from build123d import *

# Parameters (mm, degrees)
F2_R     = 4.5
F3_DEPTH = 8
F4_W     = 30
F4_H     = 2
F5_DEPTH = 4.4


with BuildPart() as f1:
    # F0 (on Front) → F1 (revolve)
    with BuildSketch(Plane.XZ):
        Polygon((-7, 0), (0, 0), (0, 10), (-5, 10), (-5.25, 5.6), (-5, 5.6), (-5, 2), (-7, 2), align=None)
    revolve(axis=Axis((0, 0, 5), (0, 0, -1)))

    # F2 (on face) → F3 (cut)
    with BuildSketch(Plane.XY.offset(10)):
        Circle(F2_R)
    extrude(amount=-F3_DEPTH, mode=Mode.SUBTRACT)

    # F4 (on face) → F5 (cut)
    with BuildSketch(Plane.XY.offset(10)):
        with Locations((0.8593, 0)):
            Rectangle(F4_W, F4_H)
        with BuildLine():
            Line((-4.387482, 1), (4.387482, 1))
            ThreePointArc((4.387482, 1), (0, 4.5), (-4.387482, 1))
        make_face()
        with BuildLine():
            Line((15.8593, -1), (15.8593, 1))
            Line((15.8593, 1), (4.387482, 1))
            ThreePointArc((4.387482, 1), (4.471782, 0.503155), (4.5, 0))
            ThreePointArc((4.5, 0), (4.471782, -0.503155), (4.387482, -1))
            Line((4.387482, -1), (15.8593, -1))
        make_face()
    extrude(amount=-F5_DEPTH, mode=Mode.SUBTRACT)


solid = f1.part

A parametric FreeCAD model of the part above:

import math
import FreeCAD as App
import Part
import Sketcher

V = App.Vector

doc = App.newDocument("Part")
body = doc.addObject("PartDesign::Body", "Body")

# Sketch on XZ plane
sketch1 = doc.addObject("Sketcher::SketchObject", "Sketch")
body.addObject(sketch1)
sketch1.AttachmentSupport = (doc.XZ_Plane, [""])
sketch1.MapMode = "FlatFace"
sketch1.addGeometry([
    Part.LineSegment(V(-7, 0, 0), V(0, 0, 0)),  # 0
    Part.LineSegment(V(0, 0, 0), V(0, 10, 0)),  # 1
    Part.LineSegment(V(0, 10, 0), V(-5, 10, 0)),  # 2
    Part.LineSegment(V(-5, 10, 0), V(-5.25, 5.6, 0)),  # 3
    Part.LineSegment(V(-5.25, 5.6, 0), V(-5, 5.6, 0)),  # 4
    Part.LineSegment(V(-5, 5.6, 0), V(-5, 2, 0)),  # 5
    Part.LineSegment(V(-5, 2, 0), V(-7, 2, 0)),  # 6
    Part.LineSegment(V(-7, 2, 0), V(-7, 0, 0)),  # 7
], False)
sketch1.addConstraint([
    Sketcher.Constraint("Coincident", 0, 2, 1, 1),
    Sketcher.Constraint("Coincident", 1, 2, 2, 1),
    Sketcher.Constraint("Coincident", 2, 2, 3, 1),
    Sketcher.Constraint("Coincident", 3, 2, 4, 1),
    Sketcher.Constraint("Coincident", 4, 2, 5, 1),
    Sketcher.Constraint("Coincident", 5, 2, 6, 1),
    Sketcher.Constraint("Coincident", 6, 2, 7, 1),
    Sketcher.Constraint("Coincident", 7, 2, 0, 1),
    Sketcher.Constraint("Horizontal", 0),
    Sketcher.Constraint("Vertical", 1),
    Sketcher.Constraint("Horizontal", 2),
    Sketcher.Constraint("Horizontal", 4),
    Sketcher.Constraint("Vertical", 5),
    Sketcher.Constraint("Horizontal", 6),
    Sketcher.Constraint("Vertical", 7),
    Sketcher.Constraint("Coincident", 0, 2, -1, 1),
    Sketcher.Constraint("Vertical", 2, 2, 4, 2),
    Sketcher.Constraint("Equal", 6, 7),
    Sketcher.Constraint("DistanceX", 0, 1, 0, 2, 7.0),
    Sketcher.Constraint("DistanceX", 2, 2, 2, 1, 5.0),
    Sketcher.Constraint("DistanceY", 1, 1, 1, 2, 10.0),
    Sketcher.Constraint("DistanceY", 5, 2, 5, 1, 3.6),
    Sketcher.Constraint("DistanceX", 4, 1, 4, 2, 0.25),
])
revolution = doc.addObject("PartDesign::Revolution", "Revolution")
body.addObject(revolution)
revolution.Profile = sketch1
revolution.ReferenceAxis = (sketch1, ["V_Axis"])
revolution.Angle = 360

# Sketch on XY plane
sketch2 = doc.addObject("Sketcher::SketchObject", "Sketch001")
body.addObject(sketch2)
sketch2.AttachmentSupport = (doc.XY_Plane, [""])
sketch2.MapMode = "FlatFace"
sketch2.AttachmentOffset = App.Placement(V(0, 0, 10), App.Rotation())
sketch2.addGeometry(Part.Circle(V(0, 0, 0), V(0, 0, 1), 4.5), False)
sketch2.addConstraint([
    Sketcher.Constraint("Coincident", 0, 3, -1, 1),
    Sketcher.Constraint("Diameter", 0, 9.0),
])
pocket1 = doc.addObject("PartDesign::Pocket", "Pocket")
body.addObject(pocket1)
pocket1.Profile = sketch2
pocket1.Length = 8

# Sketch on XY plane
sketch3 = doc.addObject("Sketcher::SketchObject", "Sketch002")
body.addObject(sketch3)
sketch3.AttachmentSupport = (doc.XY_Plane, [""])
sketch3.MapMode = "FlatFace"
sketch3.AttachmentOffset = App.Placement(V(0, 0, 10), App.Rotation())
sketch3.addGeometry([
    Part.LineSegment(V(-14.1, 1, 0), V(-14.1, -1, 0)),  # 0
    Part.LineSegment(V(-14.1, -1, 0), V(15.9, -1, 0)),  # 1
    Part.LineSegment(V(15.9, -1, 0), V(15.9, 1, 0)),  # 2
    Part.LineSegment(V(15.9, 1, 0), V(4.4, 1, 0)),  # 3
    Part.ArcOfCircle(Part.Circle(V(0, 0, 0), V(0, 0, 1), 4.5), math.radians(13), math.radians(167)),  # 4
    Part.LineSegment(V(-4.4, 1, 0), V(-14.1, 1, 0)),  # 5
], False)
sketch3.addConstraint([
    Sketcher.Constraint("Coincident", 0, 2, 1, 1),
    Sketcher.Constraint("Coincident", 1, 2, 2, 1),
    Sketcher.Constraint("Coincident", 2, 2, 3, 1),
    Sketcher.Constraint("Coincident", 3, 2, 4, 1),
    Sketcher.Constraint("Coincident", 4, 2, 5, 1),
    Sketcher.Constraint("Coincident", 5, 2, 0, 1),
    Sketcher.Constraint("Vertical", 0),
    Sketcher.Constraint("Horizontal", 1),
    Sketcher.Constraint("Vertical", 2),
    Sketcher.Constraint("Horizontal", 3),
    Sketcher.Constraint("Horizontal", 5),
    Sketcher.Constraint("Coincident", 4, 3, -1, 1),
    Sketcher.Constraint("Horizontal", 3, 2, 4, 2),
    Sketcher.Constraint("Radius", 4, 4.5),
    Sketcher.Constraint("DistanceX", 1, 1, 1, 2, 30.0),
    Sketcher.Constraint("DistanceY", 0, 2, 0, 1, 2.0),
    Sketcher.Constraint("DistanceY", 0, 2, -1, 1, 1.0),
    Sketcher.Constraint("DistanceX", 0, 2, -1, 1, 14.1407),
])
pocket2 = doc.addObject("PartDesign::Pocket", "Pocket001")
body.addObject(pocket2)
pocket2.Profile = sketch3
pocket2.Length = 4.4

doc.recompute()
